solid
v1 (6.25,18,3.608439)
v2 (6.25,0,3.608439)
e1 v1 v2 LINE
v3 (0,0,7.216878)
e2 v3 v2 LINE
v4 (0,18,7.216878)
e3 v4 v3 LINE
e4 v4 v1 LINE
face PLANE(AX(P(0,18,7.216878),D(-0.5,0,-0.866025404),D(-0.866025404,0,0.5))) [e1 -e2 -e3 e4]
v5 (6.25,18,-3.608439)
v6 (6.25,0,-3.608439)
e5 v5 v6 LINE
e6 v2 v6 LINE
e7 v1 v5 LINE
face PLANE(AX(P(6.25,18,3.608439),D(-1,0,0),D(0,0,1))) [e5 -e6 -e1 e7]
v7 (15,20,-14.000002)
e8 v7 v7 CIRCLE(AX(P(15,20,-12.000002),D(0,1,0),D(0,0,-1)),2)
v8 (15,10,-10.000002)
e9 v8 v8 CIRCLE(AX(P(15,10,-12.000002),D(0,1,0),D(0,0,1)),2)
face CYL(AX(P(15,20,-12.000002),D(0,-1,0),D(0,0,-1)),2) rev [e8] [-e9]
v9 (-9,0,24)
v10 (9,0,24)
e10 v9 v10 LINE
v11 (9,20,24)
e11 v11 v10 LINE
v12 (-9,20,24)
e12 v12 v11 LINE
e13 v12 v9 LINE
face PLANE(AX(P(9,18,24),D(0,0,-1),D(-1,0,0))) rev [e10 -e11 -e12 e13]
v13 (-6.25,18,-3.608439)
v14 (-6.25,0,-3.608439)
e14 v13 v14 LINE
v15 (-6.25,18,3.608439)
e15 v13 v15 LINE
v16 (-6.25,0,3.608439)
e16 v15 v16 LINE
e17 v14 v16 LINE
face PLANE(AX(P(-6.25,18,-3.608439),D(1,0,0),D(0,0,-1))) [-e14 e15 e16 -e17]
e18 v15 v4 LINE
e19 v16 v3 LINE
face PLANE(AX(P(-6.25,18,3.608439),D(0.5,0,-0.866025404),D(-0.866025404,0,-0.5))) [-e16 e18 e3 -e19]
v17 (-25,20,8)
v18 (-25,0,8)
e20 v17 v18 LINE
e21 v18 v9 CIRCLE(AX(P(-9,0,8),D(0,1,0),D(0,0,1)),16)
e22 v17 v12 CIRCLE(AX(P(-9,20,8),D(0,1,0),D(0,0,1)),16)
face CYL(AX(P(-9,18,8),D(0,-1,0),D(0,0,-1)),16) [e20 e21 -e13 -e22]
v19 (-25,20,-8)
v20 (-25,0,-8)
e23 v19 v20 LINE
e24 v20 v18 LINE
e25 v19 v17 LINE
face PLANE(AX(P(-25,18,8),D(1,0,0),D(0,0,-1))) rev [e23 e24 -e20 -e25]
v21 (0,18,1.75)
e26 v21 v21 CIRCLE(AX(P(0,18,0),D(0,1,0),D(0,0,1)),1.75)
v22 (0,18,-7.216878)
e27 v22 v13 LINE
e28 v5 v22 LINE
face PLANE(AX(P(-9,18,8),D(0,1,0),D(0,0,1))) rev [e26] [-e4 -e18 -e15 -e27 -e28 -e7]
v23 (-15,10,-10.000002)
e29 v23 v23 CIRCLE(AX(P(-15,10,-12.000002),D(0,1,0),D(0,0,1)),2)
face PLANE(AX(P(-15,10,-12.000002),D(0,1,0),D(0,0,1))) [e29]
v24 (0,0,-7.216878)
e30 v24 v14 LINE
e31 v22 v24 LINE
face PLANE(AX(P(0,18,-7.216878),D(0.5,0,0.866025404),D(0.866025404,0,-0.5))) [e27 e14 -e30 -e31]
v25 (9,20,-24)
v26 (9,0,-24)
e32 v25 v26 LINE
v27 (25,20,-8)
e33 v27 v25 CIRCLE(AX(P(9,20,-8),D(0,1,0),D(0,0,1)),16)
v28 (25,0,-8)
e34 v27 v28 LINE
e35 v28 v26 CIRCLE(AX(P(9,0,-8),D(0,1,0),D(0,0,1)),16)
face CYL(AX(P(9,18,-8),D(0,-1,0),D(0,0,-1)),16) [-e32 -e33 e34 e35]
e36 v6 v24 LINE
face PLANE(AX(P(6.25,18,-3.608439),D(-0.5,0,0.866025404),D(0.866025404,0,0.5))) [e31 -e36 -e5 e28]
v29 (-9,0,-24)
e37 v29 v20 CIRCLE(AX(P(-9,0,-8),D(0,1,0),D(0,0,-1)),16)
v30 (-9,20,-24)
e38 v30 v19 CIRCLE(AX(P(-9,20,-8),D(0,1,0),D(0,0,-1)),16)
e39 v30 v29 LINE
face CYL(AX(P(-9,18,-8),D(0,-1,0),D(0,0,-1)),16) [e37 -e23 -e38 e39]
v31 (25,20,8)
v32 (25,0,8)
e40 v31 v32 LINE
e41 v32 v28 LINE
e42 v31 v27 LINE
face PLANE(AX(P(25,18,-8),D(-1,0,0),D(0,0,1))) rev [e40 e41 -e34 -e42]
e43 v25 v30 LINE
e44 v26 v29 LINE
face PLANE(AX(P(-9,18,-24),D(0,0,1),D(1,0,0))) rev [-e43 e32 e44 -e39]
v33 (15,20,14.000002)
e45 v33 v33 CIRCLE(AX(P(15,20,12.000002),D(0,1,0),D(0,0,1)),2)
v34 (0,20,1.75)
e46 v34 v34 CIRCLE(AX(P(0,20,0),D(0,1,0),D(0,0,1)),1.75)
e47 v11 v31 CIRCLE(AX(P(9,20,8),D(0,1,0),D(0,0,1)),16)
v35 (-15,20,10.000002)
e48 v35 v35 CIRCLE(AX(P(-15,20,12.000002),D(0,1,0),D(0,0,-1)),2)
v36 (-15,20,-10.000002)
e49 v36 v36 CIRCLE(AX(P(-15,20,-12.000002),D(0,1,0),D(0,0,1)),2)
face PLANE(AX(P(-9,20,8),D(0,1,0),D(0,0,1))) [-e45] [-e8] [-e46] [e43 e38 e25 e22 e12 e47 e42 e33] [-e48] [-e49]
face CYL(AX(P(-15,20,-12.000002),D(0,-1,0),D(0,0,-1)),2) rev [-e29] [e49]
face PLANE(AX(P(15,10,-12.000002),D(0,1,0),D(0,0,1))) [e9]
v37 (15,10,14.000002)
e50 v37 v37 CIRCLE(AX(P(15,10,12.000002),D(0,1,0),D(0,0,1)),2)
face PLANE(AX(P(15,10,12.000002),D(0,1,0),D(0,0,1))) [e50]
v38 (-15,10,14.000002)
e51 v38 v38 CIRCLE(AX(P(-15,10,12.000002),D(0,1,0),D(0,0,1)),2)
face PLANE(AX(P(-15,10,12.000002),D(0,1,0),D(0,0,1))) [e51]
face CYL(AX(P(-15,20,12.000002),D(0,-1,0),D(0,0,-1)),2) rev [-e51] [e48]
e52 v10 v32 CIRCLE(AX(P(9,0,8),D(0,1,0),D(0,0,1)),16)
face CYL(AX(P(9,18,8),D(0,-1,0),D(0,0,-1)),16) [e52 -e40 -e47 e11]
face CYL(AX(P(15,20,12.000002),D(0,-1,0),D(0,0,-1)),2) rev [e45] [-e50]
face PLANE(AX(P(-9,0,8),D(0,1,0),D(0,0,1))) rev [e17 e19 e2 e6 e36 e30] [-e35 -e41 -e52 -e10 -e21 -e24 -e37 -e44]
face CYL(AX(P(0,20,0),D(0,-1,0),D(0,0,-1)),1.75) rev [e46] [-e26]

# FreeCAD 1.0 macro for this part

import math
import FreeCAD as App
import Part
import Sketcher
Q = App.Units.Quantity

doc = App.newDocument("Part")
params = doc.addObject("Spreadsheet::Sheet", "Params")
for row, (alias, value) in enumerate([
    ("sketch1_radius", "16 mm"),
    ("sketch1_width", "18.000001 mm"),
    ("sketch1_height", "16 mm"),
    ("pad1_length", "18 mm"),
    ("sketch2_diameter", "4 mm"),
    ("sketch2_radius", "16 mm"),
    ("sketch2_diameter2", "3.5 mm"),
    ("sketch2_width", "18.000001 mm"),
    ("sketch2_height", "16 mm"),
    ("pad2_length", "2 mm"),
    ("sketch3_diameter", "4 mm"),
    ("pocket1_length", "10 mm"),
], start=1):
    params.set(f"A{row}", alias)
    params.set(f"B{row}", "=" + value)
    params.setAlias(f"B{row}", alias)

body = doc.addObject("PartDesign::Body", "Body")

# Sketch on XZ plane
sketch1 = doc.addObject("Sketcher::SketchObject", "Sketch")
body.addObject(sketch1)
sketch1.AttachmentSupport = (doc.XZ_Plane, [""])
sketch1.MapMode = "FlatFace"
sketch1.addGeometry([
    Part.LineSegment(App.Vector(9, -24, 0), App.Vector(-9, -24, 0)),  # 0
    Part.ArcOfCircle(Part.Circle(App.Vector(-9, -8, 0), App.Vector(0, 0, 1), 16), math.radians(180), math.radians(270)),  # 1
    Part.LineSegment(App.Vector(-25, -8, 0), App.Vector(-25, 8, 0)),  # 2
    Part.ArcOfCircle(Part.Circle(App.Vector(-9, 8, 0), App.Vector(0, 0, 1), 16), math.radians(90), math.radians(180)),  # 3
    Part.LineSegment(App.Vector(-9, 24, 0), App.Vector(9, 24, 0)),  # 4
    Part.ArcOfCircle(Part.Circle(App.Vector(9, 8, 0), App.Vector(0, 0, 1), 16), math.radians(0), math.radians(90)),  # 5
    Part.LineSegment(App.Vector(25, 8, 0), App.Vector(25, -8, 0)),  # 6
    Part.ArcOfCircle(Part.Circle(App.Vector(9, -8, 0), App.Vector(0, 0, 1), 16), math.radians(-90), math.radians(0)),  # 7
    Part.LineSegment(App.Vector(0, -7, 0), App.Vector(6, -4, 0)),  # 8
    Part.LineSegment(App.Vector(6, -4, 0), App.Vector(6, 4, 0)),  # 9
    Part.LineSegment(App.Vector(6, 4, 0), App.Vector(0, 7, 0)),  # 10
    Part.LineSegment(App.Vector(0, 7, 0), App.Vector(-6, 4, 0)),  # 11
    Part.LineSegment(App.Vector(-6, 4, 0), App.Vector(-6, -4, 0)),  # 12
    Part.LineSegment(App.Vector(-6, -4, 0), App.Vector(0, -7, 0)),  # 13
], False)
sketch1.addConstraint([
    Sketcher.Constraint("Tangent", 0, 2, 1, 2),
    Sketcher.Constraint("Tangent", 1, 1, 2, 1),
    Sketcher.Constraint("Tangent", 2, 2, 3, 2),
    Sketcher.Constraint("Tangent", 3, 1, 4, 1),
    Sketcher.Constraint("Tangent", 4, 2, 5, 2),
    Sketcher.Constraint("Tangent", 5, 1, 6, 1),
    Sketcher.Constraint("Tangent", 6, 2, 7, 2),
    Sketcher.Constraint("Tangent", 7, 1, 0, 1),
    Sketcher.Constraint("Coincident", 8, 2, 9, 1),
    Sketcher.Constraint("Coincident", 9, 2, 10, 1),
    Sketcher.Constraint("Coincident", 10, 2, 11, 1),
    Sketcher.Constraint("Coincident", 11, 2, 12, 1),
    Sketcher.Constraint("Coincident", 12, 2, 13, 1),
    Sketcher.Constraint("Coincident", 13, 2, 8, 1),
    Sketcher.Constraint("Horizontal", 0),
    Sketcher.Constraint("Vertical", 2),
    Sketcher.Constraint("Horizontal", 4),
    Sketcher.Constraint("Vertical", 6),
    Sketcher.Constraint("Vertical", 9),
    Sketcher.Constraint("Vertical", 12),
    Sketcher.Constraint("Equal", 1, 3),
    Sketcher.Constraint("Equal", 3, 5),
    Sketcher.Constraint("Equal", 5, 7),
    Sketcher.Constraint("Symmetric", 1, 3, 5, 3, -1, 1),
    Sketcher.Constraint("Symmetric", 8, 2, 11, 2, -1, 1),
    Sketcher.Constraint("Symmetric", 10, 2, 13, 2, -1, 1),
    Sketcher.Constraint("PointOnObject", 10, 2, -2),
    Sketcher.Constraint("Parallel", 10, 13),
    Sketcher.Constraint("Horizontal", 9, 2, 11, 2),
    Sketcher.Constraint("Radius", 1, Q("16 mm")),
    Sketcher.Constraint("DistanceX", 0, 2, 0, 1, Q("18.000001 mm")),
    Sketcher.Constraint("DistanceY", 2, 1, 2, 2, Q("16 mm")),
    Sketcher.Constraint("Angle", 8, Q("30 deg")),
    Sketcher.Constraint("DistanceX", 11, 2, 9, 2, Q("12.5 mm")),
    Sketcher.Constraint("DistanceY", 9, 1, 9, 2, Q("7.216878 mm")),
])
sketch1.setExpression("Constraints[29]", "Params.sketch1_radius")
sketch1.setExpression("Constraints[30]", "Params.sketch1_width")
sketch1.setExpression("Constraints[31]", "Params.sketch1_height")
pad1 = doc.addObject("PartDesign::Pad", "Pad")
body.addObject(pad1)
pad1.Profile = sketch1
pad1.setExpression("Length", "Params.pad1_length")
pad1.Reversed = True

# Sketch on XZ plane
sketch2 = doc.addObject("Sketcher::SketchObject", "Sketch001")
body.addObject(sketch2)
sketch2.AttachmentSupport = (doc.XZ_Plane, [""])
sketch2.MapMode = "FlatFace"
sketch2.AttachmentOffset = App.Placement(App.Vector(0, 0, -18), App.Rotation())
sketch2.addGeometry([
    Part.LineSegment(App.Vector(9, -24, 0), App.Vector(-9, -24, 0)),  # 0
    Part.ArcOfCircle(Part.Circle(App.Vector(-9, -8, 0), App.Vector(0, 0, 1), 16), math.radians(180), math.radians(270)),  # 1
    Part.LineSegment(App.Vector(-25, -8, 0), App.Vector(-25, 8, 0)),  # 2
    Part.ArcOfCircle(Part.Circle(App.Vector(-9, 8, 0), App.Vector(0, 0, 1), 16), math.radians(90), math.radians(180)),  # 3
    Part.LineSegment(App.Vector(-9, 24, 0), App.Vector(9, 24, 0)),  # 4
    Part.ArcOfCircle(Part.Circle(App.Vector(9, 8, 0), App.Vector(0, 0, 1), 16), math.radians(0), math.radians(90)),  # 5
    Part.LineSegment(App.Vector(25, 8, 0), App.Vector(25, -8, 0)),  # 6
    Part.ArcOfCircle(Part.Circle(App.Vector(9, -8, 0), App.Vector(0, 0, 1), 16), math.radians(-90), math.radians(0)),  # 7
    Part.Circle(App.Vector(15, 12, 0), App.Vector(0, 0, 1), 2),  # 8
    Part.Circle(App.Vector(-15, 12, 0), App.Vector(0, 0, 1), 2),  # 9
    Part.Circle(App.Vector(15, -12, 0), App.Vector(0, 0, 1), 2),  # 10
    Part.Circle(App.Vector(0, 0, 0), App.Vector(0, 0, 1), 1.8),  # 11
    Part.Circle(App.Vector(-15, -12, 0), App.Vector(0, 0, 1), 2),  # 12
], False)
sketch2.addConstraint([
    Sketcher.Constraint("Tangent", 0, 2, 1, 2),
    Sketcher.Constraint("Tangent", 1, 1, 2, 1),
    Sketcher.Constraint("Tangent", 2, 2, 3, 2),
    Sketcher.Constraint("Tangent", 3, 1, 4, 1),
    Sketcher.Constraint("Tangent", 4, 2, 5, 2),
    Sketcher.Constraint("Tangent", 5, 1, 6, 1),
    Sketcher.Constraint("Tangent", 6, 2, 7, 2),
    Sketcher.Constraint("Tangent", 7, 1, 0, 1),
    Sketcher.Constraint("Horizontal", 0),
    Sketcher.Constraint("Vertical", 2),
    Sketcher.Constraint("Horizontal", 4),
    Sketcher.Constraint("Vertical", 6),
    Sketcher.Constraint("Coincident", 11, 3, -1, 1),
    Sketcher.Constraint("Equal", 1, 3),
    Sketcher.Constraint("Equal", 3, 5),
    Sketcher.Constraint("Equal", 5, 7),
    Sketcher.Constraint("Equal", 8, 9),
    Sketcher.Constraint("Equal", 9, 10),
    Sketcher.Constraint("Equal", 10, 12),
    Sketcher.Constraint("Symmetric", 1, 3, 5, 3, -1, 1),
    Sketcher.Constraint("Symmetric", 9, 3, 10, 3, -1, 1),
    Sketcher.Constraint("Symmetric", 8, 3, 12, 3, -1, 1),
    Sketcher.Constraint("Symmetric", 8, 3, 9, 3, -2),
    Sketcher.Constraint("Diameter", 8, Q("4 mm")),
    Sketcher.Constraint("Radius", 1, Q("16 mm")),
    Sketcher.Constraint("Diameter", 11, Q("3.5 mm")),
    Sketcher.Constraint("DistanceX", 0, 2, 0, 1, Q("18.000001 mm")),
    Sketcher.Constraint("DistanceY", 2, 1, 2, 2, Q("16 mm")),
    Sketcher.Constraint("DistanceX", -1, 1, 8, 3, Q("15 mm")),
    Sketcher.Constraint("DistanceY", -1, 1, 8, 3, Q("12.000002 mm")),
])
sketch2.setExpression("Constraints[23]", "Params.sketch2_diameter")
sketch2.setExpression("Constraints[24]", "Params.sketch2_radius")
sketch2.setExpression("Constraints[25]", "Params.sketch2_diameter2")
sketch2.setExpression("Constraints[26]", "Params.sketch2_width")
sketch2.setExpression("Constraints[27]", "Params.sketch2_height")
pad2 = doc.addObject("PartDesign::Pad", "Pad001")
body.addObject(pad2)
pad2.Profile = sketch2
pad2.setExpression("Length", "Params.pad2_length")
pad2.Reversed = True

# Sketch on XZ plane
sketch3 = doc.addObject("Sketcher::SketchObject", "Sketch002")
body.addObject(sketch3)
sketch3.AttachmentSupport = (doc.XZ_Plane, [""])
sketch3.MapMode = "FlatFace"
sketch3.AttachmentOffset = App.Placement(App.Vector(0, 0, -10), App.Rotation())
sketch3.addGeometry([
    Part.Circle(App.Vector(-15, -12, 0), App.Vector(0, 0, 1), 2),
    Part.Circle(App.Vector(15, -12, 0), App.Vector(0, 0, 1), 2),
    Part.Circle(App.Vector(15, 12, 0), App.Vector(0, 0, 1), 2),
    Part.Circle(App.Vector(-15, 12, 0), App.Vector(0, 0, 1), 2),
], False)
sketch3.addConstraint([
    Sketcher.Constraint("Equal", 0, 1),
    Sketcher.Constraint("Equal", 1, 2),
    Sketcher.Constraint("Equal", 2, 3),
    Sketcher.Constraint("Symmetric", 0, 3, 2, 3, -1, 1),
    Sketcher.Constraint("Symmetric", 1, 3, 3, 3, -1, 1),
    Sketcher.Constraint("Symmetric", 0, 3, 1, 3, -2),
    Sketcher.Constraint("Diameter", 0, Q("4 mm")),
    Sketcher.Constraint("DistanceX", 0, 3, -1, 1, Q("15 mm")),
    Sketcher.Constraint("DistanceY", 0, 3, -1, 1, Q("12.000002 mm")),
])
sketch3.setExpression("Constraints[6]", "Params.sketch3_diameter")
pocket1 = doc.addObject("PartDesign::Pocket", "Pocket")
body.addObject(pocket1)
pocket1.Profile = sketch3
pocket1.setExpression("Length", "Params.pocket1_length")

doc.recompute()
